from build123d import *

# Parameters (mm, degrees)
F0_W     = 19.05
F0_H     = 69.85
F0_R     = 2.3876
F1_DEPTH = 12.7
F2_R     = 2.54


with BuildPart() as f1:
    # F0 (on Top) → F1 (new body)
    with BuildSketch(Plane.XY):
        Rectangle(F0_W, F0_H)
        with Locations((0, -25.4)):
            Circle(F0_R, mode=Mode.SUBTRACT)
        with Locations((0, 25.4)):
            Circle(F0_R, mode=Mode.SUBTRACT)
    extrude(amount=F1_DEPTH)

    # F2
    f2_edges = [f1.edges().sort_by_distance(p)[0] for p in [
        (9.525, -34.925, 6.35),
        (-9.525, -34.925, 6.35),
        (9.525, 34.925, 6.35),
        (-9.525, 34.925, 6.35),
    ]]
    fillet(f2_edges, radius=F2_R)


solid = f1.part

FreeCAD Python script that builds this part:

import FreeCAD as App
import Part
import Sketcher
Q = App.Units.Quantity


def edges_at(feature, points):
    """Names of the edges that pass closest to the given points."""
    edges = feature.Shape.Edges
    near = lambda p: min(range(len(edges)), key=lambda i: edges[i].distToShape(Part.Vertex(*p))[0])
    return sorted({f"Edge{near(p) + 1}" for p in points})

doc = App.newDocument("Part")
body = doc.addObject("PartDesign::Body", "Body")

# Sketch on XY plane
sketch1 = body.newObject("Sketcher::SketchObject", "Sketch")
sketch1.AttachmentSupport = (doc.getObject("XY_Plane"), [""])
sketch1.MapMode = "FlatFace"
sketch1.addGeometry(Part.LineSegment(App.Vector(-9.5, 34.9, 0), App.Vector(-9.5, -34.9, 0)), False)
sketch1.addGeometry(Part.LineSegment(App.Vector(-9.5, -34.9, 0), App.Vector(9.5, -34.9, 0)), False)
sketch1.addGeometry(Part.LineSegment(App.Vector(9.5, -34.9, 0), App.Vector(9.5, 34.9, 0)), False)
sketch1.addGeometry(Part.LineSegment(App.Vector(9.5, 34.9, 0), App.Vector(-9.5, 34.9, 0)), False)
sketch1.addGeometry(Part.Circle(App.Vector(0, -25.4, 0), App.Vector(0, 0, 1), 2.4), False)
sketch1.addGeometry(Part.Circle(App.Vector(0, 25.4, 0), App.Vector(0, 0, 1), 2.4), False)
sketch1.addConstraint(Sketcher.Constraint("Coincident", 0, 2, 1, 1))
sketch1.addConstraint(Sketcher.Constraint("Coincident", 1, 2, 2, 1))
sketch1.addConstraint(Sketcher.Constraint("Coincident", 2, 2, 3, 1))
sketch1.addConstraint(Sketcher.Constraint("Coincident", 3, 2, 0, 1))
sketch1.addConstraint(Sketcher.Constraint("Vertical", 0))
sketch1.addConstraint(Sketcher.Constraint("Horizontal", 1))
sketch1.addConstraint(Sketcher.Constraint("Vertical", 2))
sketch1.addConstraint(Sketcher.Constraint("Horizontal", 3))
sketch1.addConstraint(Sketcher.Constraint("Equal", 4, 5))
sketch1.addConstraint(Sketcher.Constraint("Symmetric", 4, 3, 5, 3, -1, 1))
sketch1.addConstraint(Sketcher.Constraint("Symmetric", 0, 2, 2, 2, -1, 1))
sketch1.addConstraint(Sketcher.Constraint("PointOnObject", 4, 3, -2))
sketch1.addConstraint(Sketcher.Constraint("Diameter", 4, Q("0.188 in")))
sketch1.addConstraint(Sketcher.Constraint("DistanceY", 4, 3, -1, 1, Q("1 in")))
sketch1.addConstraint(Sketcher.Constraint("DistanceX", 1, 1, 1, 2, Q("0.75 in")))
sketch1.addConstraint(Sketcher.Constraint("DistanceY", 0, 2, 0, 1, Q("2.75 in")))
pad1 = body.newObject("PartDesign::Pad", "Pad")
pad1.Profile = sketch1
pad1.Length = Q("0.5 in")
doc.recompute()

fillet = body.newObject("PartDesign::Fillet", "Fillet")
fillet.Base = (pad1, edges_at(pad1, [
    (9.525, -34.925, 6.35),
    (-9.525, -34.925, 6.35),
    (9.525, 34.925, 6.35),
    (-9.525, 34.925, 6.35),
]))
fillet.Radius = Q("0.1 in")

doc.recompute()
